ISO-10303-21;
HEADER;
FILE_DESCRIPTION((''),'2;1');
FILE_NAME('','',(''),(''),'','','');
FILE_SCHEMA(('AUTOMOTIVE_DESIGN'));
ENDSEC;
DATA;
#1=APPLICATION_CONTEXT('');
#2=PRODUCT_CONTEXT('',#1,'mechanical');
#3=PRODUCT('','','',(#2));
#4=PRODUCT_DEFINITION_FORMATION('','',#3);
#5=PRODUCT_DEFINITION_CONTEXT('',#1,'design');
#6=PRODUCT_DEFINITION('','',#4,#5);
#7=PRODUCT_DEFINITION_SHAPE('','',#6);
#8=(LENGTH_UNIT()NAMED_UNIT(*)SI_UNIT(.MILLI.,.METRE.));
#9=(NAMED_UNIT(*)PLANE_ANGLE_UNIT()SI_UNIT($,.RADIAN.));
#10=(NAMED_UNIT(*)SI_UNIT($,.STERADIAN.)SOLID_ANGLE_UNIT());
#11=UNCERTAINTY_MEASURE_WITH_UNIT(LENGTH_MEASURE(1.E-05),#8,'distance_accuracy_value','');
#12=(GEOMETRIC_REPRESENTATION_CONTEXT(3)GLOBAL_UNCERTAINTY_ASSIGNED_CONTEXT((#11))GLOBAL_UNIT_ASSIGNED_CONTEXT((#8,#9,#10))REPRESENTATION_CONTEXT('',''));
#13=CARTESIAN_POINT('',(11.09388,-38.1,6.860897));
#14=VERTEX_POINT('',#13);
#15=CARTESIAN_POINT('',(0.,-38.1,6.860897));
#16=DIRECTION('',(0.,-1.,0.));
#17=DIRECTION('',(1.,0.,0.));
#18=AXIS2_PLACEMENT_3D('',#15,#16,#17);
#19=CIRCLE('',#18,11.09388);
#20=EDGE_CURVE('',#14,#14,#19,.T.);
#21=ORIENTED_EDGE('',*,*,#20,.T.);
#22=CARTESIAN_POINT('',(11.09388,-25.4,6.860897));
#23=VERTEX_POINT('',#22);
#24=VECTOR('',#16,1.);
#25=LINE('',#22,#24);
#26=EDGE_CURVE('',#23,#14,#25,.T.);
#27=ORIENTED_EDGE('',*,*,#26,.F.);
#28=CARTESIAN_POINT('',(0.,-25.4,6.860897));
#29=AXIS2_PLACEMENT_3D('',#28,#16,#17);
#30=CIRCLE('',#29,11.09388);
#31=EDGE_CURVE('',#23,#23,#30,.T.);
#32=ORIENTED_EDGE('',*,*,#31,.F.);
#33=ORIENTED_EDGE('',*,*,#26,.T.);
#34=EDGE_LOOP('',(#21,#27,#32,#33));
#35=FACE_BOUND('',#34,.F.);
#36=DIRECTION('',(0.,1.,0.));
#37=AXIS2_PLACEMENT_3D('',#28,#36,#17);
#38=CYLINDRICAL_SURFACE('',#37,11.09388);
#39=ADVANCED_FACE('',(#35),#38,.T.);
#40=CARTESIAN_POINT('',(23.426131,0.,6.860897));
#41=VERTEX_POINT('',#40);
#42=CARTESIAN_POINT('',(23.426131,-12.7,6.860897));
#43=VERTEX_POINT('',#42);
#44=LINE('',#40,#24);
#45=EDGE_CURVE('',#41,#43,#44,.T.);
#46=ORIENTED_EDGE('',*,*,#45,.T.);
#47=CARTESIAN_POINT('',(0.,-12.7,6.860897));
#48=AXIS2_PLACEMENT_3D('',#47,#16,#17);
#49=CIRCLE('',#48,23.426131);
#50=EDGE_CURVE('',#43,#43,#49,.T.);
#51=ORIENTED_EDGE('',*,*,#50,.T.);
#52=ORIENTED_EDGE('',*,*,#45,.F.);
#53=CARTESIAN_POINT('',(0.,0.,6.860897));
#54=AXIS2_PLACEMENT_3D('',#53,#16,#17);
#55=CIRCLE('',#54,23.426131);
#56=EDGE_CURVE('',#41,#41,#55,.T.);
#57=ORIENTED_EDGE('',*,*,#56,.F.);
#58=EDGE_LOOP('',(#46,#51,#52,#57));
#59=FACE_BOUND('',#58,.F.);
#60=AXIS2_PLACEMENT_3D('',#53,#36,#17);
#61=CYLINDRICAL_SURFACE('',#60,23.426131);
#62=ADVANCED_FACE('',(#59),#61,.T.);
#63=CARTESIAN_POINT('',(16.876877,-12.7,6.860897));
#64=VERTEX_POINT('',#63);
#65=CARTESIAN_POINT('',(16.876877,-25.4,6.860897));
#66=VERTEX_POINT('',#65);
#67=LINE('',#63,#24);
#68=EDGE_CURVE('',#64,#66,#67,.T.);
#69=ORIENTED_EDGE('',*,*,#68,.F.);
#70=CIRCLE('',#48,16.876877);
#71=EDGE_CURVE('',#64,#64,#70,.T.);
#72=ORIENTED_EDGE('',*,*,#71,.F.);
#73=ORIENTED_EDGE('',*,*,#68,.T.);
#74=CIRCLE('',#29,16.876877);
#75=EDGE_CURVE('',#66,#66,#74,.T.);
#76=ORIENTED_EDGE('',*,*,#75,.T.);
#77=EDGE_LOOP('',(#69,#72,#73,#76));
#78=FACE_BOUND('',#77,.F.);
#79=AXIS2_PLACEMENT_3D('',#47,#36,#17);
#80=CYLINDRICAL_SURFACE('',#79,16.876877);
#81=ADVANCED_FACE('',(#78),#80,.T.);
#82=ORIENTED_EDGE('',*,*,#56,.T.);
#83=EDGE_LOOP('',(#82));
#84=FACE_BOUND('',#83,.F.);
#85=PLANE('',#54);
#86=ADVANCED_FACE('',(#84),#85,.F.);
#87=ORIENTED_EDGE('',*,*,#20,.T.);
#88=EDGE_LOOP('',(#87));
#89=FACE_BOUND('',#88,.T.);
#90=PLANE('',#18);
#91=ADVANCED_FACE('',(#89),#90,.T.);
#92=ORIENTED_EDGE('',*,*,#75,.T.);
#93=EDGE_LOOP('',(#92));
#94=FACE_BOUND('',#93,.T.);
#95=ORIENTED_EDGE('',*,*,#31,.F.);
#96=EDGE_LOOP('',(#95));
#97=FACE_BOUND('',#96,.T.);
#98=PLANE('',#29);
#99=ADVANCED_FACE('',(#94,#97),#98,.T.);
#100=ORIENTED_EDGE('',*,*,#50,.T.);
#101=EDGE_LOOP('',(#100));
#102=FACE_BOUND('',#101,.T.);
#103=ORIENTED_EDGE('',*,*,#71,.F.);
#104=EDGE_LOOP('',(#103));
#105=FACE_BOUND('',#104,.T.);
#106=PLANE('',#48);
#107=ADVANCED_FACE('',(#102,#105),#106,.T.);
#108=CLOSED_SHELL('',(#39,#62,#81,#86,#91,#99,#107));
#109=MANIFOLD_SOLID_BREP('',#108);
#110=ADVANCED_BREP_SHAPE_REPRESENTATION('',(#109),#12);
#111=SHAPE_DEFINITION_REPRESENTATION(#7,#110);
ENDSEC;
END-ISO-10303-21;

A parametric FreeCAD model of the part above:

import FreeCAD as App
import Part
import Sketcher
Q = App.Units.Quantity

doc = App.newDocument("Part")
body = doc.addObject("PartDesign::Body", "Body")

sketch1 = body.newObject("Sketcher::SketchObject", "Sketch")
sketch1.AttachmentSupport = (doc.getObject("XZ_Plane"), [""])
sketch1.MapMode = "FlatFace"
sketch1.addGeometry(Part.Circle(App.Vector(0, 6.860897, 0), App.Vector(0, 0, 1), 23.426131), False)
sketch1.addConstraint(Sketcher.Constraint("PointOnObject", 0, 3, -2))
sketch1.addConstraint(Sketcher.Constraint("Diameter", 0, 46.852262))
sketch1.addConstraint(Sketcher.Constraint("DistanceY", -1, 1, 0, 3, 6.860897))
pad1 = body.newObject("PartDesign::Pad", "Pad")
pad1.Profile = sketch1
pad1.Length = Q("0.5 in")

sketch2 = body.newObject("Sketcher::SketchObject", "Sketch001")
sketch2.AttachmentSupport = (doc.getObject("XZ_Plane"), [""])
sketch2.MapMode = "FlatFace"
sketch2.AttachmentOffset = App.Placement(App.Vector(0, 0, 0.5 * 25.4), App.Rotation())
sketch2.addGeometry(Part.Circle(App.Vector(0, 6.860897, 0), App.Vector(0, 0, 1), 16.876877), False)
sketch2.addConstraint(Sketcher.Constraint("PointOnObject", 0, 3, -2))
sketch2.addConstraint(Sketcher.Constraint("Diameter", 0, 33.753754))
sketch2.addConstraint(Sketcher.Constraint("DistanceY", -1, 1, 0, 3, 6.860897))
pad2 = body.newObject("PartDesign::Pad", "Pad001")
pad2.Profile = sketch2
pad2.Length = Q("0.5 in")

sketch3 = body.newObject("Sketcher::SketchObject", "Sketch002")
sketch3.AttachmentSupport = (doc.getObject("XZ_Plane"), [""])
sketch3.MapMode = "FlatFace"
sketch3.AttachmentOffset = App.Placement(App.Vector(0, 0, 1 * 25.4), App.Rotation())
sketch3.addGeometry(Part.Circle(App.Vector(0, 6.860897, 0), App.Vector(0, 0, 1), 11.09388), False)
sketch3.addConstraint(Sketcher.Constraint("PointOnObject", 0, 3, -2))
sketch3.addConstraint(Sketcher.Constraint("Diameter", 0, 22.18776))
sketch3.addConstraint(Sketcher.Constraint("DistanceY", -1, 1, 0, 3, 6.860897))
pad3 = body.newObject("PartDesign::Pad", "Pad002")
pad3.Profile = sketch3
pad3.Length = Q("0.5 in")

doc.recompute()
